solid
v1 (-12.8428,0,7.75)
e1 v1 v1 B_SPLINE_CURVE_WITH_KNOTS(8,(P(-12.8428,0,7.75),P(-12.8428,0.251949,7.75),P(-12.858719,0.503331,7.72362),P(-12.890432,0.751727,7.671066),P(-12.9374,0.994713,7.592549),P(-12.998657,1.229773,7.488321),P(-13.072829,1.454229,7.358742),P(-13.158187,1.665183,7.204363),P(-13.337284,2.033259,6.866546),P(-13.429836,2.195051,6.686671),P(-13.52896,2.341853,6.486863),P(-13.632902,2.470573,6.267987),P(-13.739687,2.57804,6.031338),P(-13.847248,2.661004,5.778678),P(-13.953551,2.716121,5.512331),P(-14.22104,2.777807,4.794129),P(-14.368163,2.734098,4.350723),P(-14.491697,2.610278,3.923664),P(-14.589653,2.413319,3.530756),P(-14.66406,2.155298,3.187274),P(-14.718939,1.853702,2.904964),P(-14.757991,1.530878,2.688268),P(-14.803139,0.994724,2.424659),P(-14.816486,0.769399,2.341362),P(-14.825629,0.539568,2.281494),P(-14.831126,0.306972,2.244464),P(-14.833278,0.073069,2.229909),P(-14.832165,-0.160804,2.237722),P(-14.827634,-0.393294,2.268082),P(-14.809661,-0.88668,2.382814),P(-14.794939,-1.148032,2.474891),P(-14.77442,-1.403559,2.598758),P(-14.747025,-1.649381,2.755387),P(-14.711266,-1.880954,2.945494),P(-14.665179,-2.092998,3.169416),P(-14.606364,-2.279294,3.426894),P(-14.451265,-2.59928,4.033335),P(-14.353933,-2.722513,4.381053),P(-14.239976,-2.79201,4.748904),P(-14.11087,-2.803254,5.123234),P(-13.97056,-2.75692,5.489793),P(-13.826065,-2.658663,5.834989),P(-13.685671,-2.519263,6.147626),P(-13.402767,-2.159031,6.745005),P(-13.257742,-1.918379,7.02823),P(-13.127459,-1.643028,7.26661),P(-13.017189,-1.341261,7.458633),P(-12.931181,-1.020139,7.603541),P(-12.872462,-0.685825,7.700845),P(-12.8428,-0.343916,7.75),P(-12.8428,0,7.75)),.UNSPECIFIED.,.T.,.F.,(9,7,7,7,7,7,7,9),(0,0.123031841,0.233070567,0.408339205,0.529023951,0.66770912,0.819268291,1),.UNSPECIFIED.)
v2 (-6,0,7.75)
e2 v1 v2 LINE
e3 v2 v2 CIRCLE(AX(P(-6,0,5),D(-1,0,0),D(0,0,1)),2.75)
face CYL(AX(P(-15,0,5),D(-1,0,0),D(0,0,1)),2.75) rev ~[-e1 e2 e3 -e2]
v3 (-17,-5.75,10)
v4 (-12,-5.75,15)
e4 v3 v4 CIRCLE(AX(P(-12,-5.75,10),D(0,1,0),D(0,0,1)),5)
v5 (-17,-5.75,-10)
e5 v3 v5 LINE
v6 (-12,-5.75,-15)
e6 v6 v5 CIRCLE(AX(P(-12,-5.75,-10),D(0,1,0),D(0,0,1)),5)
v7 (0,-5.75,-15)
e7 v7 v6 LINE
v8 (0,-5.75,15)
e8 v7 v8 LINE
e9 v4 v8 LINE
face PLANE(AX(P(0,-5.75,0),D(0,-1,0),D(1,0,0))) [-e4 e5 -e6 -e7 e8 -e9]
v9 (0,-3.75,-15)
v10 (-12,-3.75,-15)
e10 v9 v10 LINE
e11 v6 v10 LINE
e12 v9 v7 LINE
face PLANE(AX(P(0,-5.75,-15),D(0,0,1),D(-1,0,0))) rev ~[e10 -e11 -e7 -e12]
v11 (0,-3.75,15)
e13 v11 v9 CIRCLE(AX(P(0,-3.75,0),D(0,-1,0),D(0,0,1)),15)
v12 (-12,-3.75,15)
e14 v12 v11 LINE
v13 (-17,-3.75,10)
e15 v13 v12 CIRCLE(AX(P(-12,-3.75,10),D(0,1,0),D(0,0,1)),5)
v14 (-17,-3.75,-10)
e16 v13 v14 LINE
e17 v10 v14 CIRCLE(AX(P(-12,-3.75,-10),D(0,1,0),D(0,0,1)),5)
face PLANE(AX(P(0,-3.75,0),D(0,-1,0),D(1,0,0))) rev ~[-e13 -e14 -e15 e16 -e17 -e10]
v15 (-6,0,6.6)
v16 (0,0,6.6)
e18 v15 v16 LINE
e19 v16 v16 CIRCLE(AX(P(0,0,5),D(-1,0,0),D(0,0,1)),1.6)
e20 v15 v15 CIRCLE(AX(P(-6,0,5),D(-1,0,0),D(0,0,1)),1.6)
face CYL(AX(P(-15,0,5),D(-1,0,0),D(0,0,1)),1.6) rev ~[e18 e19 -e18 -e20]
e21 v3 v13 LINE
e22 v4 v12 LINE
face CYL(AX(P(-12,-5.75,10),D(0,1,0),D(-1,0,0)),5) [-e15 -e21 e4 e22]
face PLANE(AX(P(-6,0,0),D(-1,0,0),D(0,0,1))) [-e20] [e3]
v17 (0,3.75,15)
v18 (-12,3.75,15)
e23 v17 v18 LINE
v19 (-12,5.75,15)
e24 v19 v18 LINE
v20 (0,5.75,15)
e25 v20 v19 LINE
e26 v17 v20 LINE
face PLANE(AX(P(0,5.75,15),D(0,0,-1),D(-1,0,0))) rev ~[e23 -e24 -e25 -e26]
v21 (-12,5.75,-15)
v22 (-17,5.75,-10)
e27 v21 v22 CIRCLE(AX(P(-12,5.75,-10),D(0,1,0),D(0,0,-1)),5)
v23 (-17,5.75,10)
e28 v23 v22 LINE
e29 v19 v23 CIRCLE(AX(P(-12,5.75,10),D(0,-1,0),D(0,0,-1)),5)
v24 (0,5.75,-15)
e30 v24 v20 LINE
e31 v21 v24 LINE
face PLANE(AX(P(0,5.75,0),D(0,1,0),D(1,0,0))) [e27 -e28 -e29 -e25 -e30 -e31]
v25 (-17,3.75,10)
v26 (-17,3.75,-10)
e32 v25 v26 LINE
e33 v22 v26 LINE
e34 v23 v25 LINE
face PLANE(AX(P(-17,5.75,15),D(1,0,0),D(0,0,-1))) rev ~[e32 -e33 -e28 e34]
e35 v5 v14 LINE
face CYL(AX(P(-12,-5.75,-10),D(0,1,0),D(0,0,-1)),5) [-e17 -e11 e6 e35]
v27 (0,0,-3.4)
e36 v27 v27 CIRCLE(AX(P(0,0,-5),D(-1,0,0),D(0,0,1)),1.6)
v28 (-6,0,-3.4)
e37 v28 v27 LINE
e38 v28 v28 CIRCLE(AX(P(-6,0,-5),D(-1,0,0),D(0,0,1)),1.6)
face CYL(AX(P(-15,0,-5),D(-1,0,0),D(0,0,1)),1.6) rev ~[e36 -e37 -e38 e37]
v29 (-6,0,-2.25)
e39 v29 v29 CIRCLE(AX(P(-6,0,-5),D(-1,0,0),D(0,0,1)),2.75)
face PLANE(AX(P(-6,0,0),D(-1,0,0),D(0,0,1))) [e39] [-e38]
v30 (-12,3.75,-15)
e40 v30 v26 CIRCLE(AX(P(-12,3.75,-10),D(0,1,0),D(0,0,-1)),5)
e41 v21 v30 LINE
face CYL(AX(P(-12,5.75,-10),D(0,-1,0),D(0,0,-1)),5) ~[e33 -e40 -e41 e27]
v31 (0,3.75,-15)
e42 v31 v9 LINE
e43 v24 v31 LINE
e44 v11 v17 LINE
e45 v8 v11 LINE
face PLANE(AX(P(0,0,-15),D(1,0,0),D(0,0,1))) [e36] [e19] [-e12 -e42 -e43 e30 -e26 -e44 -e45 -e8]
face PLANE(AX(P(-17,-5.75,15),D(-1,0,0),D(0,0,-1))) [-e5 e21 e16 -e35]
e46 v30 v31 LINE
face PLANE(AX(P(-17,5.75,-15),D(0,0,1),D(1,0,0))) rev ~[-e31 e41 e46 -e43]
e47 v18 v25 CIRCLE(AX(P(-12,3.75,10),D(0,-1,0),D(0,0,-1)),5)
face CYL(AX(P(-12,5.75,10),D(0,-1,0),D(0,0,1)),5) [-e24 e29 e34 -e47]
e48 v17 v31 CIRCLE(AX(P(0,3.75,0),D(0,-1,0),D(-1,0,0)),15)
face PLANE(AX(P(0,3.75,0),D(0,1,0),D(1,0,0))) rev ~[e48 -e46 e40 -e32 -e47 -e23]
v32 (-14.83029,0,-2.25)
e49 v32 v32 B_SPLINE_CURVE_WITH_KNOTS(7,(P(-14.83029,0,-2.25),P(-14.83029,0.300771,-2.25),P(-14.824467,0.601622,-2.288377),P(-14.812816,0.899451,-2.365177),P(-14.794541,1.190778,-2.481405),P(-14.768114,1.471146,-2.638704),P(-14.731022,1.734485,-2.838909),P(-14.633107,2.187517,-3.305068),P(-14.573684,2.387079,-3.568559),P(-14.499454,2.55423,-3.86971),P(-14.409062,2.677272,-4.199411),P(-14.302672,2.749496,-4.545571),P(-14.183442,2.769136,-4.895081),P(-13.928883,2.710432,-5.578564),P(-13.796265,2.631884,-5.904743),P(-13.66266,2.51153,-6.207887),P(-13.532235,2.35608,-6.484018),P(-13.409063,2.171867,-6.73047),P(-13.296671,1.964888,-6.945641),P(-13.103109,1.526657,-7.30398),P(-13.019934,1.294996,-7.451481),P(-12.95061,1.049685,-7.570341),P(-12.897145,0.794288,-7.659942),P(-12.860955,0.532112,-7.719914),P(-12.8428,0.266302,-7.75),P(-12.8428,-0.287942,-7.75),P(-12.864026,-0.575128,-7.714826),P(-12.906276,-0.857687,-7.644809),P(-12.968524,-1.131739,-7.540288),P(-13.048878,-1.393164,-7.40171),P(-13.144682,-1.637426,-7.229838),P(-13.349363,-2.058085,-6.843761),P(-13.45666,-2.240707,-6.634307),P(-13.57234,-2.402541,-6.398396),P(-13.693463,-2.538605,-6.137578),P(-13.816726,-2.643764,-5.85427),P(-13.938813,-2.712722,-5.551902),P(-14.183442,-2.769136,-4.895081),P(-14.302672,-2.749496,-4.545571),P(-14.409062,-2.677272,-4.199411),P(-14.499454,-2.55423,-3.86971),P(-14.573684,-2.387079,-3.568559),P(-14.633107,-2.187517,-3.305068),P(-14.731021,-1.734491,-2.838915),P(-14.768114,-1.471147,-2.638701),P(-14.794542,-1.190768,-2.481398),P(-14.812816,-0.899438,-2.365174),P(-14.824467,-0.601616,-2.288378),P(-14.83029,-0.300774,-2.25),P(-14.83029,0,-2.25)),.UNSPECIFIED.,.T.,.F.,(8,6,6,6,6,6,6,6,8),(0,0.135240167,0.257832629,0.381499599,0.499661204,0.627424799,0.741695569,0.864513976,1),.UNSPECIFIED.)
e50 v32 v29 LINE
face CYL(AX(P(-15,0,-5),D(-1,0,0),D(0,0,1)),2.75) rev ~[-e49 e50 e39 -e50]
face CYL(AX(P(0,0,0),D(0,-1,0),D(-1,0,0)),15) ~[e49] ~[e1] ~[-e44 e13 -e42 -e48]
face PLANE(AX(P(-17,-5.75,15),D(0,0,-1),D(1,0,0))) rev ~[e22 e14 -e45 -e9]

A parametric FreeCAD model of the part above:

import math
import FreeCAD as App
import Part
import Sketcher
from FreeCAD import Vector
Q = App.Units.Quantity


def edges_at(feature, points):
    """Names of the edges that pass closest to the given points."""
    edges = feature.Shape.Edges
    near = lambda p: min(range(len(edges)), key=lambda i: edges[i].distToShape(Part.Vertex(*p))[0])
    return sorted({f"Edge{near(p) + 1}" for p in points})


def add_polygon(sketch, points):
    """Adds a closed chain of lines whose ends are joined by coincident constraints."""
    first, n = sketch.GeometryCount, len(points)
    for a, b in zip(points, points[1:] + points[:1]):
        sketch.addGeometry(Part.LineSegment(App.Vector(*a, 0), App.Vector(*b, 0)), False)
    for i in range(n):
        sketch.addConstraint(Sketcher.Constraint("Coincident", first + i, 2, first + (i + 1) % n, 1))

doc = App.newDocument("Part")
body = doc.addObject("PartDesign::Body", "Body")

# Sketch on XZ plane
sketch1 = body.newObject("Sketcher::SketchObject", "Sketch")
sketch1.AttachmentSupport = (doc.getObject("XZ_Plane"), [""])
sketch1.MapMode = "FlatFace"
sketch1.addGeometry(Part.ArcOfCircle(Part.Circle(Vector(0, 0, 0), Vector(0, 0, 1), 15), math.radians(90), math.radians(270)), False)
sketch1.addGeometry(Part.LineSegment(Vector(0, 15, 0), Vector(0, -15, 0)), False)
sketch1.addConstraint(Sketcher.Constraint("Coincident", 0, 1, 1, 1))
sketch1.addConstraint(Sketcher.Constraint("Coincident", 1, 2, 0, 2))
sketch1.addConstraint(Sketcher.Constraint("Vertical", 1))
sketch1.addConstraint(Sketcher.Constraint("Coincident", 0, 3, -1, 1))
sketch1.addConstraint(Sketcher.Constraint("PointOnObject", 0, 1, -2))
sketch1.addConstraint(Sketcher.Constraint("Radius", 0, Q("15 mm")))
pad1 = body.newObject("PartDesign::Pad", "Pad")
pad1.Profile = sketch1
pad1.Length = 11.5
pad1.Midplane = True

# Sketch on XZ plane
sketch2 = body.newObject("Sketcher::SketchObject", "Sketch001")
sketch2.AttachmentSupport = (doc.getObject("XZ_Plane"), [""])
sketch2.MapMode = "FlatFace"
sketch2.AttachmentOffset = App.Placement(Vector(0, 0, -5.75), App.Rotation())
add_polygon(sketch2, [(-17, 15), (0, 15), (0, -15), (-17, -15)])  # lines 0-3
sketch2.addConstraint(Sketcher.Constraint("Horizontal", 0))
sketch2.addConstraint(Sketcher.Constraint("Vertical", 1))
sketch2.addConstraint(Sketcher.Constraint("Horizontal", 2))
sketch2.addConstraint(Sketcher.Constraint("Vertical", 3))
sketch2.addConstraint(Sketcher.Constraint("Symmetric", 0, 2, 1, 2, -1, 1))
sketch2.addConstraint(Sketcher.Constraint("DistanceX", 0, 1, 0, 2, Q("17 mm")))
sketch2.addConstraint(Sketcher.Constraint("DistanceY", 1, 2, 1, 1, Q("30 mm")))
pad2 = body.newObject("PartDesign::Pad", "Pad001")
pad2.Profile = sketch2
pad2.Length = 2

# Sketch on XZ plane
sketch3 = body.newObject("Sketcher::SketchObject", "Sketch002")
sketch3.AttachmentSupport = (doc.getObject("XZ_Plane"), [""])
sketch3.MapMode = "FlatFace"
sketch3.AttachmentOffset = App.Placement(Vector(0, 0, 5.75), App.Rotation())
sketch3.addGeometry(Part.ArcOfCircle(Part.Circle(Vector(0, 0, 0), Vector(0, 0, 1), 15), math.radians(90), math.radians(270)), False)
sketch3.addGeometry(Part.LineSegment(Vector(0, 15, 0), Vector(-17, 15, 0)), False)
sketch3.addGeometry(Part.LineSegment(Vector(-17, 15, 0), Vector(-17, -15, 0)), False)
sketch3.addGeometry(Part.LineSegment(Vector(-17, -15, 0), Vector(0, -15, 0)), False)
sketch3.addConstraint(Sketcher.Constraint("Tangent", 0, 1, 1, 1))
sketch3.addConstraint(Sketcher.Constraint("Coincident", 1, 2, 2, 1))
sketch3.addConstraint(Sketcher.Constraint("Coincident", 2, 2, 3, 1))
sketch3.addConstraint(Sketcher.Constraint("Tangent", 3, 2, 0, 2))
sketch3.addConstraint(Sketcher.Constraint("Horizontal", 1))
sketch3.addConstraint(Sketcher.Constraint("Vertical", 2))
sketch3.addConstraint(Sketcher.Constraint("Horizontal", 3))
sketch3.addConstraint(Sketcher.Constraint("Coincident", 0, 3, -1, 1))
sketch3.addConstraint(Sketcher.Constraint("Radius", 0, Q("15 mm")))
sketch3.addConstraint(Sketcher.Constraint("DistanceX", 1, 2, 1, 1, Q("17 mm")))
pad3 = body.newObject("PartDesign::Pad", "Pad002")
pad3.Profile = sketch3
pad3.Length = 2
pad3.Reversed = True

# Sketch on YZ plane
sketch4 = body.newObject("Sketcher::SketchObject", "Sketch003")
sketch4.AttachmentSupport = (doc.getObject("YZ_Plane"), [""])
sketch4.MapMode = "FlatFace"
sketch4.AttachmentOffset = App.Placement(Vector(0, 0, -15), App.Rotation())
sketch4.addGeometry(Part.Circle(Vector(0, -5, 0), Vector(0, 0, 1), 1.6), False)
sketch4.addGeometry(Part.Circle(Vector(0, 5, 0), Vector(0, 0, 1), 1.6), False)
sketch4.addConstraint(Sketcher.Constraint("Equal", 0, 1))
sketch4.addConstraint(Sketcher.Constraint("Symmetric", 0, 3, 1, 3, -1, 1))
sketch4.addConstraint(Sketcher.Constraint("PointOnObject", 0, 3, -2))
sketch4.addConstraint(Sketcher.Constraint("Diameter", 0, Q("3.2 mm")))
sketch4.addConstraint(Sketcher.Constraint("DistanceY", 0, 3, 1, 3, Q("10 mm")))
pocket1 = body.newObject("PartDesign::Pocket", "Pocket")
pocket1.Profile = sketch4
pocket1.Length = 15
pocket1.Reversed = True

# Sketch on YZ plane
sketch5 = body.newObject("Sketcher::SketchObject", "Sketch004")
sketch5.AttachmentSupport = (doc.getObject("YZ_Plane"), [""])
sketch5.MapMode = "FlatFace"
sketch5.AttachmentOffset = App.Placement(Vector(0, 0, -15), App.Rotation())
sketch5.addGeometry(Part.Circle(Vector(0, -5, 0), Vector(0, 0, 1), 2.8), False)
sketch5.addGeometry(Part.Circle(Vector(0, -5, 0), Vector(0, 0, 1), 1.6), False)
sketch5.addGeometry(Part.Circle(Vector(0, 5, 0), Vector(0, 0, 1), 2.8), False)
sketch5.addGeometry(Part.Circle(Vector(0, 5, 0), Vector(0, 0, 1), 1.6), False)
sketch5.addConstraint(Sketcher.Constraint("Coincident", 1, 3, 0, 3))
sketch5.addConstraint(Sketcher.Constraint("Coincident", 3, 3, 2, 3))
sketch5.addConstraint(Sketcher.Constraint("Equal", 0, 2))
sketch5.addConstraint(Sketcher.Constraint("Equal", 1, 3))
sketch5.addConstraint(Sketcher.Constraint("Symmetric", 0, 3, 2, 3, -1, 1))
sketch5.addConstraint(Sketcher.Constraint("PointOnObject", 0, 3, -2))
sketch5.addConstraint(Sketcher.Constraint("Diameter", 0, Q("5.5 mm")))
sketch5.addConstraint(Sketcher.Constraint("Diameter", 1, Q("3.2 mm")))
sketch5.addConstraint(Sketcher.Constraint("DistanceY", 0, 3, 2, 3, Q("10 mm")))
pocket2 = body.newObject("PartDesign::Pocket", "Pocket001")
pocket2.Profile = sketch5
pocket2.Length = 9
pocket2.Reversed = True
doc.recompute()

fillet = body.newObject("PartDesign::Fillet", "Fillet")
fillet.Base = (pocket2, edges_at(pocket2, [
    (-17, 4.75, -15),
    (-17, 4.75, 15),
    (-17, -4.75, 15),
    (-17, -4.75, -15),
]))
fillet.Radius = 5

doc.recompute()
